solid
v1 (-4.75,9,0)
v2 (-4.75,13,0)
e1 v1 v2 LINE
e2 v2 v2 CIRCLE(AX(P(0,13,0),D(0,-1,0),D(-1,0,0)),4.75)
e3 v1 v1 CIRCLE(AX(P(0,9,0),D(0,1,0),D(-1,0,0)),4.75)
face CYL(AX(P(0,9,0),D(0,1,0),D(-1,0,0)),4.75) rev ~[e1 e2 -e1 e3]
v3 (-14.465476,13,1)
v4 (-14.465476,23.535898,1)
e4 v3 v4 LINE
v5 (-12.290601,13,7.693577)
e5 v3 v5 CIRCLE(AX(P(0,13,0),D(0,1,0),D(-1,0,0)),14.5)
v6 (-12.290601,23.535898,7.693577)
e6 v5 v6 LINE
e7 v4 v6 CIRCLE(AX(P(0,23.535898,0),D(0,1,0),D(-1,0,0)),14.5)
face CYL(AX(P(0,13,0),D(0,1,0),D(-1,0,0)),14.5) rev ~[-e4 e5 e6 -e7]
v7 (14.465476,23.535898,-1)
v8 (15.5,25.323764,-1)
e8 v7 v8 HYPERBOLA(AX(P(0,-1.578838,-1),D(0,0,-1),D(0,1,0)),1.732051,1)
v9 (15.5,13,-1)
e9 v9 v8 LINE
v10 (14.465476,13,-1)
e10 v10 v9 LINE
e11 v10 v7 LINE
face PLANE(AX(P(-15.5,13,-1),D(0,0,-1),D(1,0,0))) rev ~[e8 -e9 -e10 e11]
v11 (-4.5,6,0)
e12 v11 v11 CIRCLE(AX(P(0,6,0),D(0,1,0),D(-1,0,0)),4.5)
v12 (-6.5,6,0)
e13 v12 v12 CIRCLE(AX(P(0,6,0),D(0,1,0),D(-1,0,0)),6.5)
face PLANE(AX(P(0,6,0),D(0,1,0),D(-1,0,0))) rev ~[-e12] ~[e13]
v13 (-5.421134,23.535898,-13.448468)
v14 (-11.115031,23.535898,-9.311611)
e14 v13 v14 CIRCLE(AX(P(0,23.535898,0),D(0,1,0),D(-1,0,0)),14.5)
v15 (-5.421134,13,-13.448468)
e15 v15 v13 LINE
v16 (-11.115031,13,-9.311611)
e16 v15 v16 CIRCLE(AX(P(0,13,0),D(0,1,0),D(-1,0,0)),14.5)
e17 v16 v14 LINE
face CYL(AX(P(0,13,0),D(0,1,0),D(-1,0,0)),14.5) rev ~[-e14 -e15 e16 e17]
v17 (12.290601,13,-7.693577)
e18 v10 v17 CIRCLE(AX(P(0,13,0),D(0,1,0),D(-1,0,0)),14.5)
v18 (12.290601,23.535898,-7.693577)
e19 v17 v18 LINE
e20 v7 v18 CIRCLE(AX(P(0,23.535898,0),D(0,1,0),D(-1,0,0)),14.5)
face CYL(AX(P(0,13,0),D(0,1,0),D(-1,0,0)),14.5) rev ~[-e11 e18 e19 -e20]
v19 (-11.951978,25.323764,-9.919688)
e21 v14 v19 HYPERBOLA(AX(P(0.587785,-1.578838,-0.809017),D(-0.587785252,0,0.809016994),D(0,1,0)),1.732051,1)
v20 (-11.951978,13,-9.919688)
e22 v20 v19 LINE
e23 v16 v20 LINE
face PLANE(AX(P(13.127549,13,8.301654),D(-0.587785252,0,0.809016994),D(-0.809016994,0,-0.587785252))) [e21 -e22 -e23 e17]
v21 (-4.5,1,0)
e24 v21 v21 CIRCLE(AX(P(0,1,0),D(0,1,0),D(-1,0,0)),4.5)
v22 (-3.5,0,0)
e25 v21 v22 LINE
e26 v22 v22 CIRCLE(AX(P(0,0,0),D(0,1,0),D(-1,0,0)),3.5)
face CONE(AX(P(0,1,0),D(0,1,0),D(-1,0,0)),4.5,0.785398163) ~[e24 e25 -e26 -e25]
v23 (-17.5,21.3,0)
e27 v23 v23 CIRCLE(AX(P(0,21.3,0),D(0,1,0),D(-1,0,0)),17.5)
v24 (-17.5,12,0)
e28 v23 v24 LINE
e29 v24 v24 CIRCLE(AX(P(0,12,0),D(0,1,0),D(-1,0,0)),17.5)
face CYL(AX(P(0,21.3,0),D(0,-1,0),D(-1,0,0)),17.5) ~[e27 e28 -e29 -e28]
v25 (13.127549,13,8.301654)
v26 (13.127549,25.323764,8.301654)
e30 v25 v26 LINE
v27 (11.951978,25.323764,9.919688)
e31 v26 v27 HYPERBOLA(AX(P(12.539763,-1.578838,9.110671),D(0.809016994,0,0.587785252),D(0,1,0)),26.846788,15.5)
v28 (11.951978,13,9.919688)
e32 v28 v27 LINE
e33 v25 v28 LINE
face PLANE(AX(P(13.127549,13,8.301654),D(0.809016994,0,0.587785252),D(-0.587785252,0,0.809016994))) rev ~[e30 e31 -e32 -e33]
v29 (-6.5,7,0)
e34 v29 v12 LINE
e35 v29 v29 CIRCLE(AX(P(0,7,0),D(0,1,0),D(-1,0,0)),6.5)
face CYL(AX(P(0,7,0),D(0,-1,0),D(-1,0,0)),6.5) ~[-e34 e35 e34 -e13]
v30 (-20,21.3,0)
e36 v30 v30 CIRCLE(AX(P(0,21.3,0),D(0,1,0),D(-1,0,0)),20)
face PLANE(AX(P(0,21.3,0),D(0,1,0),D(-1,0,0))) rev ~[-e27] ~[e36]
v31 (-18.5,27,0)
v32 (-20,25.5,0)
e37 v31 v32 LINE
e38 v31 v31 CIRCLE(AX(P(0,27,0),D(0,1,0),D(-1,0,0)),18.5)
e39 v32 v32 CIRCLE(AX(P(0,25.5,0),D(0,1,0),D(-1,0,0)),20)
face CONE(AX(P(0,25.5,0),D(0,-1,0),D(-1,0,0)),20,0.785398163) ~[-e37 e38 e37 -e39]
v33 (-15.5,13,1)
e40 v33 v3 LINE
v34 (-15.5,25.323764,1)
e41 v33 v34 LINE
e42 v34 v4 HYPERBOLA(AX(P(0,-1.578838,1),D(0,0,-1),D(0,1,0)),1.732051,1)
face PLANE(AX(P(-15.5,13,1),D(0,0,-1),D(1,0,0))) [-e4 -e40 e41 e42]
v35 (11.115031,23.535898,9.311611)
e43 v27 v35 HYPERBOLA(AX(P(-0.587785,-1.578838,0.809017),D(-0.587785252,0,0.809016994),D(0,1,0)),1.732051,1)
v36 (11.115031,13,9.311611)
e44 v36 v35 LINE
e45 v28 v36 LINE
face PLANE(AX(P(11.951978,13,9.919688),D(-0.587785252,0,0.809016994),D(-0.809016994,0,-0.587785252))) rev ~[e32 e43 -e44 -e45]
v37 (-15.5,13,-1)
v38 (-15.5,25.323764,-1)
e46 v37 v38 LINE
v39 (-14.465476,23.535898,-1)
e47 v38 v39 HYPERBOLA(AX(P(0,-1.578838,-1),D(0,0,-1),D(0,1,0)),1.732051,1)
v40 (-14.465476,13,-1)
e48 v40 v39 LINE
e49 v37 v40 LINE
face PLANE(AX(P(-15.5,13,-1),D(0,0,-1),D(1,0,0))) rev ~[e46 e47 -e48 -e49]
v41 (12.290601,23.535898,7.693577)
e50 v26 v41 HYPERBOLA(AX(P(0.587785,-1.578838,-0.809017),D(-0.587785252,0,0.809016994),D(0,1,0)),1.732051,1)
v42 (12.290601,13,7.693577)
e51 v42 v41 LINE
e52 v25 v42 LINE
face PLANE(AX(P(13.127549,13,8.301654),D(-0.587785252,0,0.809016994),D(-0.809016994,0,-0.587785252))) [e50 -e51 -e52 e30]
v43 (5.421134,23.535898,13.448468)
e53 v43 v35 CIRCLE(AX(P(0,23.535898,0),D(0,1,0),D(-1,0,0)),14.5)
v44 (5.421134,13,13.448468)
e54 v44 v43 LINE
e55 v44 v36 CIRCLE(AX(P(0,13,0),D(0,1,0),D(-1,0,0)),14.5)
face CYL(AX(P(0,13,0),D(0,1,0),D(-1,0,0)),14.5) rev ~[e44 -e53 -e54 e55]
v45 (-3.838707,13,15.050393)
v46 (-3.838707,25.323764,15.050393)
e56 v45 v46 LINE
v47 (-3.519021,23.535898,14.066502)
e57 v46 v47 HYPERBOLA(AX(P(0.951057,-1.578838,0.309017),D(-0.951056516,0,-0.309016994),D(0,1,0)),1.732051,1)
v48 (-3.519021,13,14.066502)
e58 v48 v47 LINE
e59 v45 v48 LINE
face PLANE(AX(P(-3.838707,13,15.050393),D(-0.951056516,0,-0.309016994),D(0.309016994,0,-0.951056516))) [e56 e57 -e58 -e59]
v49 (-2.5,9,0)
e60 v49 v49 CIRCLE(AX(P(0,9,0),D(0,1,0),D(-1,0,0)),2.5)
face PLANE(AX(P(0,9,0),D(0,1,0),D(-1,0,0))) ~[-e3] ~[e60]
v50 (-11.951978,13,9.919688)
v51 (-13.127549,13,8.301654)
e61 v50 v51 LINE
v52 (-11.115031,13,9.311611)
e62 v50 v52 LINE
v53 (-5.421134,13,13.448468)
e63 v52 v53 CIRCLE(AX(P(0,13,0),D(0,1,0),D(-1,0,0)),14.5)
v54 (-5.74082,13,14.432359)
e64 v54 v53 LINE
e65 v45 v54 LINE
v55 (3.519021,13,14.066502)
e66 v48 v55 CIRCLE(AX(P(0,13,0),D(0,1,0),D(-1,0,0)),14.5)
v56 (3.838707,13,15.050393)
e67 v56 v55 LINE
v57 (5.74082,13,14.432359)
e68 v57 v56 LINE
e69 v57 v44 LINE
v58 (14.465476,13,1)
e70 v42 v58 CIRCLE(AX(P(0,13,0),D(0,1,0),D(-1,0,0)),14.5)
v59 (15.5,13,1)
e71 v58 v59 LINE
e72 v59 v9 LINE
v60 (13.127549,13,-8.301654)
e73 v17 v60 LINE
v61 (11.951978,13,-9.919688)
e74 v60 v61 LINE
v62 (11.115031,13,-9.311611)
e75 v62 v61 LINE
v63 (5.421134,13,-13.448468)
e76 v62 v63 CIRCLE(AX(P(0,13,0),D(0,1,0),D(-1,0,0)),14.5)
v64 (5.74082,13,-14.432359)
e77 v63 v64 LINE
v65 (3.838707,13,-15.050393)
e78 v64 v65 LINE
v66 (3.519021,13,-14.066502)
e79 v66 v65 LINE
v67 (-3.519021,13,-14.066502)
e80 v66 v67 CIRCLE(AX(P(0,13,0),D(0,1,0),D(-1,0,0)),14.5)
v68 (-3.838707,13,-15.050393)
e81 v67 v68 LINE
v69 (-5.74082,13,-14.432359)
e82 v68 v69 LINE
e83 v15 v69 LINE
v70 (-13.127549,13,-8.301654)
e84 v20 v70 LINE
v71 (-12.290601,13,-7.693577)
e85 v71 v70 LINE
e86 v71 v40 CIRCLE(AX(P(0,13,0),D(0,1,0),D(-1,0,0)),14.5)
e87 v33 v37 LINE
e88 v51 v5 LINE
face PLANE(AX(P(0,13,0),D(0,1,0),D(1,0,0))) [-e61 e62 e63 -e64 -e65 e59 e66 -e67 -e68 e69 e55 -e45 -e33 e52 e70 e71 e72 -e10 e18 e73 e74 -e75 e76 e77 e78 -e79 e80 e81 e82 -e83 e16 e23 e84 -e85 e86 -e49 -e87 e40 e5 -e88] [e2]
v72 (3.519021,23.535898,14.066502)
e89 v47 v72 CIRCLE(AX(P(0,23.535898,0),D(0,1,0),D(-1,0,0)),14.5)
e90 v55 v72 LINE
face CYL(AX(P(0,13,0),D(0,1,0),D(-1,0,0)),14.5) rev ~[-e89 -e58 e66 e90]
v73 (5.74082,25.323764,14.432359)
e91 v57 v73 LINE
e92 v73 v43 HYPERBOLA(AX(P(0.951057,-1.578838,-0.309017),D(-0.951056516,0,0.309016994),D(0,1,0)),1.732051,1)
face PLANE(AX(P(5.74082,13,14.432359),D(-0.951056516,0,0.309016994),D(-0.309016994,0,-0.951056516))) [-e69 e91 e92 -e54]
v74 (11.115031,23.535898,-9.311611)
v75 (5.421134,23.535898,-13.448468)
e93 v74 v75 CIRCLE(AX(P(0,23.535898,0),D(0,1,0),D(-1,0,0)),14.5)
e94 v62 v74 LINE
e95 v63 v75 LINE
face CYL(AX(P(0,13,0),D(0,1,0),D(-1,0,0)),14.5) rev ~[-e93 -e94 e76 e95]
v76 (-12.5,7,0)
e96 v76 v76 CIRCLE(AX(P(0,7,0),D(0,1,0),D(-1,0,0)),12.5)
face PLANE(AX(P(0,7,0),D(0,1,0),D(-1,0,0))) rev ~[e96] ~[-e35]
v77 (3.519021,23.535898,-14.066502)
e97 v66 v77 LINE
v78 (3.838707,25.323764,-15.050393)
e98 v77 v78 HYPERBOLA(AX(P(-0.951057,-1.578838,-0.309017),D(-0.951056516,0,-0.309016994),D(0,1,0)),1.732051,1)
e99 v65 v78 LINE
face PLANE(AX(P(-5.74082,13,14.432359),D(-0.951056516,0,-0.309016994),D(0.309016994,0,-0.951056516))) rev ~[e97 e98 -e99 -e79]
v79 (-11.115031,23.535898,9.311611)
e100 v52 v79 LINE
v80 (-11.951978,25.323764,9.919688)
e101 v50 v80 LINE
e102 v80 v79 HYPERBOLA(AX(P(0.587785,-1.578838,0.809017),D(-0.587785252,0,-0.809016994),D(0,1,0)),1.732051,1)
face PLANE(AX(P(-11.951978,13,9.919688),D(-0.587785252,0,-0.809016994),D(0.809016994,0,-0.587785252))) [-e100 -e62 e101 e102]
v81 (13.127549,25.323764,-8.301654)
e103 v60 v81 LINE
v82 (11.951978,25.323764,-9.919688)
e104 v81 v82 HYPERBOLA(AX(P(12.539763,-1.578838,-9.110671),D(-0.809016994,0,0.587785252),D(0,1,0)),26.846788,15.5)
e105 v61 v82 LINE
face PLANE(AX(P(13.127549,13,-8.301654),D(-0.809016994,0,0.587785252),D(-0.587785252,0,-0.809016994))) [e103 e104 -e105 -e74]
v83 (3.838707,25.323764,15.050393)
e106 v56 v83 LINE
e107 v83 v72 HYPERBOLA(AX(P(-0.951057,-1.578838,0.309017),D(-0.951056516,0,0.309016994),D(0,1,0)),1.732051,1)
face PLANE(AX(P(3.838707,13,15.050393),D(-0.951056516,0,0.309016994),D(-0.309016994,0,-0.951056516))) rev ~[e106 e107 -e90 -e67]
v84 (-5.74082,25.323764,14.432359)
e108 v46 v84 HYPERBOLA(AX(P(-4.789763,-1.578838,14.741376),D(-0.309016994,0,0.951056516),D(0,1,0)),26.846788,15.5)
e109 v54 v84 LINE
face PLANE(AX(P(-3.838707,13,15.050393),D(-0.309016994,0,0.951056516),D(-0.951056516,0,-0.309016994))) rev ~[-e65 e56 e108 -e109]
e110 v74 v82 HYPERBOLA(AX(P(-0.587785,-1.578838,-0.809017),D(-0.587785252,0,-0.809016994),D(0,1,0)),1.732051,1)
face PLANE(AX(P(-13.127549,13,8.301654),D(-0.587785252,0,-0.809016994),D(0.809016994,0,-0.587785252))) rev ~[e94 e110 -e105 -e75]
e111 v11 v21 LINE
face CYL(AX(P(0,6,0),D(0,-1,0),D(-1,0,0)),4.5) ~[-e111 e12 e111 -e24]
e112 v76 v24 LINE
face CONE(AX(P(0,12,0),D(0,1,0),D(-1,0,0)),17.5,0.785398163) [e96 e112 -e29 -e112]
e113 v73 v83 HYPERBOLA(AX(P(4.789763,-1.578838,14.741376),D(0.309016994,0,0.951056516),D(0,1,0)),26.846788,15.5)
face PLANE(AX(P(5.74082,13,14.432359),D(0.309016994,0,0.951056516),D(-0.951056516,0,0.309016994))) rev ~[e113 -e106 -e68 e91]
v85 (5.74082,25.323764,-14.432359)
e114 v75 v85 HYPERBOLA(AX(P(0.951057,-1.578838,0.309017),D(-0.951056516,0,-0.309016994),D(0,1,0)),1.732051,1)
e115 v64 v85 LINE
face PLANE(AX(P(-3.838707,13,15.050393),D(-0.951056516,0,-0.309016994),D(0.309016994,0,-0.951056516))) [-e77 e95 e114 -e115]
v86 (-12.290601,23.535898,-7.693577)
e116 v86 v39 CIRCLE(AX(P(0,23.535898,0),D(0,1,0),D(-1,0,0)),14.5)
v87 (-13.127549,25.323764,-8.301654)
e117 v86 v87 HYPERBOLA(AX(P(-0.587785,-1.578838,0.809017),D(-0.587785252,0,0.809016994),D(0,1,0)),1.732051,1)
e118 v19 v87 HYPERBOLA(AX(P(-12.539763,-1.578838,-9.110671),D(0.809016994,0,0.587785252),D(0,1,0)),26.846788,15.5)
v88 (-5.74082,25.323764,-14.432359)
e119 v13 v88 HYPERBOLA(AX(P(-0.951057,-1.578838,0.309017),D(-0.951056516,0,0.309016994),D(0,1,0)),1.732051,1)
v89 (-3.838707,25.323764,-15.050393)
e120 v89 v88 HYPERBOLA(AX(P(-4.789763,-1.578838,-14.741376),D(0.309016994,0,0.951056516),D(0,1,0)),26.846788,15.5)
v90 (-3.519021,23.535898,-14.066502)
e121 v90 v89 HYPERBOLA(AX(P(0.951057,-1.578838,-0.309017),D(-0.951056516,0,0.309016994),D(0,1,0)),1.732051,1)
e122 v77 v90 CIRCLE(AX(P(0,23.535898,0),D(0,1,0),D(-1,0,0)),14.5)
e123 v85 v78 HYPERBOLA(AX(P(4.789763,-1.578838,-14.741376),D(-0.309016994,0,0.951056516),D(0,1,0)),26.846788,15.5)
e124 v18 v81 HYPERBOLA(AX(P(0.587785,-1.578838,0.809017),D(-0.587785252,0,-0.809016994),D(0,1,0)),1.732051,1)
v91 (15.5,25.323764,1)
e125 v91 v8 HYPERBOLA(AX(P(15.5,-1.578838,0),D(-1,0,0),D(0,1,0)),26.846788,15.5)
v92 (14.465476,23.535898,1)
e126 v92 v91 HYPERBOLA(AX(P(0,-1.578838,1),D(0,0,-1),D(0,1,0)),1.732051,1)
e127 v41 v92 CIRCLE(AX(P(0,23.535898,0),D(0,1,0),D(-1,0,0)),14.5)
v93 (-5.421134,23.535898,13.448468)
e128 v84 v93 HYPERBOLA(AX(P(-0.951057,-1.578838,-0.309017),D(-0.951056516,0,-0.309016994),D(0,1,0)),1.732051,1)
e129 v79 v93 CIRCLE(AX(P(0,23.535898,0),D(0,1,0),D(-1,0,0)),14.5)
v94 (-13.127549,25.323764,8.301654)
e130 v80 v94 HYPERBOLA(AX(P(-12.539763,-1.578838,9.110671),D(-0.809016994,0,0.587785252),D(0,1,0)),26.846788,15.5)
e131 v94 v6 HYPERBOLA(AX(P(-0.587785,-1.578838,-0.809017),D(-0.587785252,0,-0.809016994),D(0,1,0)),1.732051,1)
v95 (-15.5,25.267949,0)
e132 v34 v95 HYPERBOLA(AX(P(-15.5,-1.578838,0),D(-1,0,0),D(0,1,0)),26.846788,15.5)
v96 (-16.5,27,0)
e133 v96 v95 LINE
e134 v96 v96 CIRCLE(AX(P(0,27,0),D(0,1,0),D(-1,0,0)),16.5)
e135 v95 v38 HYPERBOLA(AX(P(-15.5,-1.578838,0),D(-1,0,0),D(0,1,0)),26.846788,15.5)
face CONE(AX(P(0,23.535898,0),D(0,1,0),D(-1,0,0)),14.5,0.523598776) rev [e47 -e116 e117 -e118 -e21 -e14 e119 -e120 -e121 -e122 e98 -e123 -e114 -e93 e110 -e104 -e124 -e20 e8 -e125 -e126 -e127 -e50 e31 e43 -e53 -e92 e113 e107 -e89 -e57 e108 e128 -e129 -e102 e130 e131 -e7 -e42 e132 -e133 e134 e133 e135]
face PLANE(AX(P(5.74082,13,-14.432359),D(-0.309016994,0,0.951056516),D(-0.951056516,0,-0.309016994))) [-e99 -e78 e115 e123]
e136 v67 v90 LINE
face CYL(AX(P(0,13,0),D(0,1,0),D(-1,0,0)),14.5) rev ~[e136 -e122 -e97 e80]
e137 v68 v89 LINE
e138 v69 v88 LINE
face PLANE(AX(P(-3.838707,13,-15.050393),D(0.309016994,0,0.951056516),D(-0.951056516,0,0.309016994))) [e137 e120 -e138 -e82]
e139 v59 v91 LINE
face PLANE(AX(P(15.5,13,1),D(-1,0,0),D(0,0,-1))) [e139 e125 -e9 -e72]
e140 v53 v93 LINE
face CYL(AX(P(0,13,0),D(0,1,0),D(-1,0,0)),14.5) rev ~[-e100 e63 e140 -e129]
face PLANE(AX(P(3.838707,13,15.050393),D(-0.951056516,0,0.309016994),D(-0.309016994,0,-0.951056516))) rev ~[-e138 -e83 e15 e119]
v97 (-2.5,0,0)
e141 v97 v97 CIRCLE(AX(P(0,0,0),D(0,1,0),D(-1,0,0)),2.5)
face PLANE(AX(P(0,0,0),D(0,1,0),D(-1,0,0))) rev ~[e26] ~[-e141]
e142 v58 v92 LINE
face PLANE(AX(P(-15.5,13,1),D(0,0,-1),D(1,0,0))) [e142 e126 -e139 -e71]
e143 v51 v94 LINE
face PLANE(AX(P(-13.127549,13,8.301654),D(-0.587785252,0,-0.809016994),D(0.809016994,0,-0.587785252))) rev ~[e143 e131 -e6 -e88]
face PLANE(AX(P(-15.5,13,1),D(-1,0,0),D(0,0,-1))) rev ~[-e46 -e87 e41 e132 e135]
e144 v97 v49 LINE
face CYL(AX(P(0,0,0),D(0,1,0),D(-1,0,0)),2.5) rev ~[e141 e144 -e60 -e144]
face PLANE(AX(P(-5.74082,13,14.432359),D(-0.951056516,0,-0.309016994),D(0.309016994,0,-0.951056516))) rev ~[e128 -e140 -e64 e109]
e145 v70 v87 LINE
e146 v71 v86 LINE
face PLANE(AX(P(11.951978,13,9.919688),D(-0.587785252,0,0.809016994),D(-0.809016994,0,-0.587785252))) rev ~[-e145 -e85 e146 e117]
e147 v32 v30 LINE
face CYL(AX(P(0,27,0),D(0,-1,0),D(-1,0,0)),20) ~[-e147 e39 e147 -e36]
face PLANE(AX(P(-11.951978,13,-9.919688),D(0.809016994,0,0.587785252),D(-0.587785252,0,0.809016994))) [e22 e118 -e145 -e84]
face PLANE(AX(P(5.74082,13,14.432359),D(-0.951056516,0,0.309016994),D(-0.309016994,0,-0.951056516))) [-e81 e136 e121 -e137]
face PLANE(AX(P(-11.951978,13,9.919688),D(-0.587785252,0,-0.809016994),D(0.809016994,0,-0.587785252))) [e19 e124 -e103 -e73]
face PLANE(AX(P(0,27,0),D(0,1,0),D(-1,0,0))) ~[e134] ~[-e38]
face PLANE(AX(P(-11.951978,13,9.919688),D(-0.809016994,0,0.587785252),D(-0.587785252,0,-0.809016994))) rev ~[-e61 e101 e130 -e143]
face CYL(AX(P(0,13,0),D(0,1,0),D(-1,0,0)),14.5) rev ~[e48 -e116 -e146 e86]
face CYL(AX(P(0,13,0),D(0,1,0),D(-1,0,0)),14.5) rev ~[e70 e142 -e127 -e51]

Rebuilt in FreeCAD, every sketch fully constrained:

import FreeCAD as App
import Part
import Sketcher


def edges_at(feature, points):
    """Names of the edges that pass closest to the given points."""
    edges = feature.Shape.Edges
    near = lambda p: min(range(len(edges)), key=lambda i: edges[i].distToShape(Part.Vertex(*p))[0])
    return sorted({f"Edge{near(p) + 1}" for p in points})


def add_polygon(sketch, points):
    """Adds a closed chain of lines whose ends are joined by coincident constraints."""
    first, n = sketch.GeometryCount, len(points)
    for a, b in zip(points, points[1:] + points[:1]):
        sketch.addGeometry(Part.LineSegment(App.Vector(*a, 0), App.Vector(*b, 0)), False)
    for i in range(n):
        sketch.addConstraint(Sketcher.Constraint("Coincident", first + i, 2, first + (i + 1) % n, 1))

doc = App.newDocument("Part")
body = doc.addObject("PartDesign::Body", "Body")

# Sketch on XY plane
sketch1 = body.newObject("Sketcher::SketchObject", "Sketch")
sketch1.AttachmentSupport = (doc.getObject("XY_Plane"), [""])
sketch1.MapMode = "FlatFace"
add_polygon(sketch1, [(-2.5, 0), (-2.5, 9), (-4.8, 9), (-4.8, 13), (-14.5, 13), (-14.5, 27), (-20, 27), (-20, 21.3), (-17.5, 21.3), (-17.5, 7), (-6.5, 7), (-6.5, 6), (-4.5, 6), (-4.5, 0)])  # lines 0-13
sketch1.addConstraint([
    Sketcher.Constraint("Vertical", 0),
    Sketcher.Constraint("Horizontal", 1),
    Sketcher.Constraint("Vertical", 2),
    Sketcher.Constraint("Horizontal", 3),
    Sketcher.Constraint("Vertical", 4),
    Sketcher.Constraint("Horizontal", 5),
    Sketcher.Constraint("Vertical", 6),
    Sketcher.Constraint("Horizontal", 7),
    Sketcher.Constraint("Vertical", 8),
    Sketcher.Constraint("Horizontal", 9),
    Sketcher.Constraint("Vertical", 10),
    Sketcher.Constraint("Horizontal", 11),
    Sketcher.Constraint("Vertical", 12),
    Sketcher.Constraint("Horizontal", 13),
    Sketcher.Constraint("PointOnObject", 12, 2, -1),
    Sketcher.Constraint("Equal", 11, 13),
    Sketcher.Constraint("DistanceX", 9, 1, 9, 2, 11.0),
    Sketcher.Constraint("DistanceX", 11, 1, 11, 2, 2.0),
    Sketcher.Constraint("DistanceY", 0, 1, 0, 2, 9.0),
    Sketcher.Constraint("DistanceY", 2, 1, 2, 2, 4.0),
    Sketcher.Constraint("DistanceY", 4, 1, 4, 2, 14.0),
    Sketcher.Constraint("DistanceY", 10, 2, 10, 1, 1.0),
    Sketcher.Constraint("DistanceY", 12, 2, 12, 1, 6.0),
    Sketcher.Constraint("DistanceX", 5, 2, 5, 1, 5.5),
    Sketcher.Constraint("DistanceX", 7, 1, 7, 2, 2.5),
    Sketcher.Constraint("DistanceY", 6, 2, 6, 1, 5.7),
    Sketcher.Constraint("DistanceX", 5, 2, -1, 1, 20.0),
    Sketcher.Constraint("DistanceX", 1, 2, 1, 1, 2.25),
])
revolution = body.newObject("PartDesign::Revolution", "Revolution")
revolution.Profile = sketch1
revolution.ReferenceAxis = (sketch1, ["V_Axis"])
revolution.Angle = 360
doc.recompute()

chamfer = body.newObject("PartDesign::Chamfer", "Chamfer")
chamfer.Base = (revolution, edges_at(revolution, [(14.5, 27, 0)]))
chamfer.ChamferType = "Two distances"
chamfer.Size = 2
chamfer.Size2 = 3.464102
chamfer.FlipDirection = True
doc.recompute()

chamfer2 = body.newObject("PartDesign::Chamfer", "Chamfer001")
chamfer2.Base = (chamfer, edges_at(chamfer, [(20, 27, 0)]))
chamfer2.Size = 1.5

# Sketch on XZ plane
sketch2 = body.newObject("Sketcher::SketchObject", "Sketch001")
sketch2.AttachmentSupport = (doc.getObject("XZ_Plane"), [""])
sketch2.MapMode = "FlatFace"
sketch2.AttachmentOffset = App.Placement(App.Vector(0, 0, -13), App.Rotation())
add_polygon(sketch2, [(-15.5, -1), (-15.5, 1), (15.5, 1), (15.5, -1)])  # lines 0-3
sketch2.addConstraint([
    Sketcher.Constraint("Vertical", 0),
    Sketcher.Constraint("Horizontal", 1),
    Sketcher.Constraint("Vertical", 2),
    Sketcher.Constraint("Horizontal", 3),
    Sketcher.Constraint("Symmetric", 0, 2, 2, 2, -1, 1),
    Sketcher.Constraint("DistanceX", 1, 1, 1, 2, 31.0),
    Sketcher.Constraint("DistanceY", 0, 1, 0, 2, 2.0),
])
pocket1 = body.newObject("PartDesign::Pocket", "Pocket")
pocket1.Profile = sketch2
pocket1.Type = "ThroughAll"
doc.recompute()

polarpattern = body.newObject("PartDesign::PolarPattern", "PolarPattern")
polarpattern.Originals = [pocket1]
polarpattern.Axis = (doc.getObject("Y_Axis"), [""])
polarpattern.Angle = 360
polarpattern.Occurrences = 10
body.Tip = polarpattern
doc.recompute()

chamfer3 = body.newObject("PartDesign::Chamfer", "Chamfer002")
chamfer3.Base = (polarpattern, edges_at(polarpattern, [(17.5, 7, 0)]))
chamfer3.Size = 5
doc.recompute()

chamfer4 = body.newObject("PartDesign::Chamfer", "Chamfer003")
chamfer4.Base = (chamfer3, edges_at(chamfer3, [(4.5, 0, 0)]))
chamfer4.Size = 1

doc.recompute()
